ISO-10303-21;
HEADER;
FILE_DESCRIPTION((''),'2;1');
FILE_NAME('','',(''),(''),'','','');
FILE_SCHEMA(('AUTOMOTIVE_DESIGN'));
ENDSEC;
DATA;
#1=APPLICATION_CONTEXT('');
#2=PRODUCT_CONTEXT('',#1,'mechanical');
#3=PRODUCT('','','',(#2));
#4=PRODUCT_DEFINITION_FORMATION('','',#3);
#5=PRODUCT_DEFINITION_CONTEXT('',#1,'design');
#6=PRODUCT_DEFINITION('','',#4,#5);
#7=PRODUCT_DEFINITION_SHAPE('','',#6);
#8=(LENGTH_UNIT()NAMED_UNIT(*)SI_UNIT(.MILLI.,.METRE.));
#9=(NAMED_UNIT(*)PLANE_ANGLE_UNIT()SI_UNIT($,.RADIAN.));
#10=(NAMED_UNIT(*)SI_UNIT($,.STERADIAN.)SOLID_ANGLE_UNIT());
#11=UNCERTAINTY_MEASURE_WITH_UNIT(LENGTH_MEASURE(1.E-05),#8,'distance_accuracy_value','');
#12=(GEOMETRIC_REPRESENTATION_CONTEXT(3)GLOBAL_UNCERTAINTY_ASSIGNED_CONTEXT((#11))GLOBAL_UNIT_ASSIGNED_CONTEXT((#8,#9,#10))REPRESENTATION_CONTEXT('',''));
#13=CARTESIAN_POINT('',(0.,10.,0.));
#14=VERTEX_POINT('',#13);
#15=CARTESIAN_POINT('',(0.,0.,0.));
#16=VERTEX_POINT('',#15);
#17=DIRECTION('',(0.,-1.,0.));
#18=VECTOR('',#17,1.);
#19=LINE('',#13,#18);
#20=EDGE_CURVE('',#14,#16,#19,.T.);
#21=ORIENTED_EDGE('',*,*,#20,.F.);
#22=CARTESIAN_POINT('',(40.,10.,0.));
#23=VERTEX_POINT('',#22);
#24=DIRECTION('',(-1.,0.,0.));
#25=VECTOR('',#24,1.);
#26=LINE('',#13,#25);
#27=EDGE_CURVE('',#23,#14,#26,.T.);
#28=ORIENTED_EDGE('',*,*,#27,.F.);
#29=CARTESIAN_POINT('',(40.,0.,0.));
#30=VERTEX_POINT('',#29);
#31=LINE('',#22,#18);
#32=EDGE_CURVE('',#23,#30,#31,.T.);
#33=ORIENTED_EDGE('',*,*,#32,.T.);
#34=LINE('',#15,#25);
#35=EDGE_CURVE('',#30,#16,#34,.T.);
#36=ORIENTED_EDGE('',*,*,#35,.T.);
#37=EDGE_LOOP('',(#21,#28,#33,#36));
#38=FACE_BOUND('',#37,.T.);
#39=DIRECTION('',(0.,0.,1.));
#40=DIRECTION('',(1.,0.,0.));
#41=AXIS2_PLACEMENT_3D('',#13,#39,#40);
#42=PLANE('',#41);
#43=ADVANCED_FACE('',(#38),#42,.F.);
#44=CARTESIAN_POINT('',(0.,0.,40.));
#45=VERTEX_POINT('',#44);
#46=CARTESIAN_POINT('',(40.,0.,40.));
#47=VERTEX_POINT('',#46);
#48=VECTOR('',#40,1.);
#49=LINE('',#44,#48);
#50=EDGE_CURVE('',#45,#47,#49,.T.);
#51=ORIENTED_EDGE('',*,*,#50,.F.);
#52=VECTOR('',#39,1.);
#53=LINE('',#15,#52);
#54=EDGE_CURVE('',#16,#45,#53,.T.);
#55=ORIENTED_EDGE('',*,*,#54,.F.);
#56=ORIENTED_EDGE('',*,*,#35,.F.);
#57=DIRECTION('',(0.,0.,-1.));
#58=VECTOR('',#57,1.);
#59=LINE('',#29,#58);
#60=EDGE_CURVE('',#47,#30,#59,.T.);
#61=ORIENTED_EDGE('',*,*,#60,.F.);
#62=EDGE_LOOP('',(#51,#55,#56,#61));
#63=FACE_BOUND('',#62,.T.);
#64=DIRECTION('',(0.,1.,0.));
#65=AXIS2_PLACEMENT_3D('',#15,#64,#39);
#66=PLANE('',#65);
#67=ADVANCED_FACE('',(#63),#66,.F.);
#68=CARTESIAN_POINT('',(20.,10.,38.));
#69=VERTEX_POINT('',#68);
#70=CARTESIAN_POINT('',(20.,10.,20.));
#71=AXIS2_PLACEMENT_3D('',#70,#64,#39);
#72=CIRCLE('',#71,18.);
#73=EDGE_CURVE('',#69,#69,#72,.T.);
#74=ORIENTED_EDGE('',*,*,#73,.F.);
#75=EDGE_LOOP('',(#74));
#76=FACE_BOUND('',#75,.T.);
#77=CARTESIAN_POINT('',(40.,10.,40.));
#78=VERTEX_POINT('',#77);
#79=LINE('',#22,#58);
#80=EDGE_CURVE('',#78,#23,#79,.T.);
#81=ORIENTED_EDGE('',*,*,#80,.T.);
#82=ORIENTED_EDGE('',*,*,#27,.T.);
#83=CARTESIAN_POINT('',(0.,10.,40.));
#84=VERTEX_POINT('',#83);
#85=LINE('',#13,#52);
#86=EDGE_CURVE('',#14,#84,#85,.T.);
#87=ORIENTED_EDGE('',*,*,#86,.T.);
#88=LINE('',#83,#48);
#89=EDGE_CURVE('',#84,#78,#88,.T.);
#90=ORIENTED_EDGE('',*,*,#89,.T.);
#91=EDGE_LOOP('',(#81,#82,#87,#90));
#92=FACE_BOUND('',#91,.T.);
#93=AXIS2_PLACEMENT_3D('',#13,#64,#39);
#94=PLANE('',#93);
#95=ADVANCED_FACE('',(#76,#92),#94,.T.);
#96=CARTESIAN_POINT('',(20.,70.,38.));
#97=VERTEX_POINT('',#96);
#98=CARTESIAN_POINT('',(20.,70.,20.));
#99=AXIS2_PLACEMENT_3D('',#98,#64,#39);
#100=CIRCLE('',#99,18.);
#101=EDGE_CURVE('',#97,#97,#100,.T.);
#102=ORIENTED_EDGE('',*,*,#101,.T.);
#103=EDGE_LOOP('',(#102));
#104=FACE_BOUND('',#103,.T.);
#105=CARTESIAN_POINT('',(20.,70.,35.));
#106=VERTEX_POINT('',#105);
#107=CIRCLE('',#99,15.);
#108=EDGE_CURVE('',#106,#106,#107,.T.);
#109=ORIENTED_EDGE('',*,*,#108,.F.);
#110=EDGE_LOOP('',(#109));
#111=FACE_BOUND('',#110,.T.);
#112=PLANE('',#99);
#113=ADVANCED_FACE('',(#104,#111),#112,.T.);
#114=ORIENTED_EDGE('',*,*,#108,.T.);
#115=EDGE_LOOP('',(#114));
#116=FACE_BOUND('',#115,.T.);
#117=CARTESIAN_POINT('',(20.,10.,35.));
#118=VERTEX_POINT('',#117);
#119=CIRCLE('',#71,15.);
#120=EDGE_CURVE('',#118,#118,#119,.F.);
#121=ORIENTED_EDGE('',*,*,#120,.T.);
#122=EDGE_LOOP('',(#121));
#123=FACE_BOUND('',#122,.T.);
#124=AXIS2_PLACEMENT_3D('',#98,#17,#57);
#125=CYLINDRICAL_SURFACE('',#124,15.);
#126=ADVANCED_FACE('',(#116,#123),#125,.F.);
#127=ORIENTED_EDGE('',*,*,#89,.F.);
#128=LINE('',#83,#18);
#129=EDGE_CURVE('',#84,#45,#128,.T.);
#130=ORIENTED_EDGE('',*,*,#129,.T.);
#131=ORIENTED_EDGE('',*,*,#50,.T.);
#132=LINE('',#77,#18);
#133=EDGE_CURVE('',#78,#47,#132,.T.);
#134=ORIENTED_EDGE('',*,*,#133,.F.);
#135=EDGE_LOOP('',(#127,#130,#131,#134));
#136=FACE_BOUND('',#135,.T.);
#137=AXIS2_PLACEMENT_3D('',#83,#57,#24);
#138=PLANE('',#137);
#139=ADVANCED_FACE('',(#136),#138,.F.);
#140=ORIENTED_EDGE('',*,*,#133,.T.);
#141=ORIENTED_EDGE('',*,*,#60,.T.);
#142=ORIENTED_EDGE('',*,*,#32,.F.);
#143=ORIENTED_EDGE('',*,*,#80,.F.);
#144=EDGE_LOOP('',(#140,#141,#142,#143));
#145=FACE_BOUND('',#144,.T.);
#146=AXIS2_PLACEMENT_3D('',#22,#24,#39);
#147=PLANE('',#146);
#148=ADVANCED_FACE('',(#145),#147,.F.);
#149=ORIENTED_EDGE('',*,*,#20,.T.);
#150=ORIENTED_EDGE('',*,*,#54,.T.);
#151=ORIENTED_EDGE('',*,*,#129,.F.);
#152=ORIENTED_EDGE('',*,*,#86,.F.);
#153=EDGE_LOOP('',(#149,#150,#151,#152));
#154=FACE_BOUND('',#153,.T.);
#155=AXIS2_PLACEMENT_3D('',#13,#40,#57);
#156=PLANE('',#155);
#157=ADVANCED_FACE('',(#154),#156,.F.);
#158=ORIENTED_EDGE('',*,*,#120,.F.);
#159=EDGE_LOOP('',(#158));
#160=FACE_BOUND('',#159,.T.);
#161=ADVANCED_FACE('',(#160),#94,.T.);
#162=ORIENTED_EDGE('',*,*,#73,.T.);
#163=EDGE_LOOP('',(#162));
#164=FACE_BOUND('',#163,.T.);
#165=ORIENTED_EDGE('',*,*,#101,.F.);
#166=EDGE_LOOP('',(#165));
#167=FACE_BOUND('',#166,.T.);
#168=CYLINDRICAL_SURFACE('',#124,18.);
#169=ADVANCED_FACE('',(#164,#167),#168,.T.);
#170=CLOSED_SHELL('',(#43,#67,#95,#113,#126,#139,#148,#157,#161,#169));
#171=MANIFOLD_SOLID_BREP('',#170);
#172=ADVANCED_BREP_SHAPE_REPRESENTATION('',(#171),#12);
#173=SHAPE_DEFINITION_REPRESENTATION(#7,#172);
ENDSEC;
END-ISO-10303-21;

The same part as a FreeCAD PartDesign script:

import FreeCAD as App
import Part
import Sketcher

V = App.Vector
Q = App.Units.Quantity


def add_polygon(sketch, points):
    """Adds a closed chain of lines whose ends are joined by coincident constraints."""
    first, n = sketch.GeometryCount, len(points)
    for a, b in zip(points, points[1:] + points[:1]):
        sketch.addGeometry(Part.LineSegment(App.Vector(*a, 0), App.Vector(*b, 0)), False)
    for i in range(n):
        sketch.addConstraint(Sketcher.Constraint("Coincident", first + i, 2, first + (i + 1) % n, 1))

doc = App.newDocument("Part")
body = doc.addObject("PartDesign::Body", "Body")

sketch1 = doc.addObject("Sketcher::SketchObject", "Sketch")
body.addObject(sketch1)
sketch1.AttachmentSupport = (doc.XZ_Plane, [""])
sketch1.MapMode = "FlatFace"
add_polygon(sketch1, [(0, 0), (0, 40), (40, 40), (40, 0)])
sketch1.addConstraint([
    Sketcher.Constraint("Vertical", 0),
    Sketcher.Constraint("Horizontal", 1),
    Sketcher.Constraint("Vertical", 2),
    Sketcher.Constraint("Horizontal", 3),
    Sketcher.Constraint("Coincident", 3, 2, -1, 1),
    Sketcher.Constraint("Equal", 3, 0),
    Sketcher.Constraint("DistanceX", 1, 1, 1, 2, Q("40 mm")),
])
pad1 = doc.addObject("PartDesign::Pad", "Pad")
body.addObject(pad1)
pad1.Profile = sketch1
pad1.Length = 10
pad1.Reversed = True

sketch2 = doc.addObject("Sketcher::SketchObject", "Sketch001")
body.addObject(sketch2)
sketch2.AttachmentSupport = (doc.XZ_Plane, [""])
sketch2.MapMode = "FlatFace"
sketch2.AttachmentOffset = App.Placement(V(0, 0, -10), App.Rotation())
sketch2.addGeometry([
    Part.Circle(V(20, 20, 0), V(0, 0, 1), 18),
    Part.Circle(V(20, 20, 0), V(0, 0, 1), 15),
], False)
sketch2.addConstraint([
    Sketcher.Constraint("Coincident", 1, 3, 0, 3),
    Sketcher.Constraint("Diameter", 0, Q("36 mm")),
    Sketcher.Constraint("Diameter", 1, Q("30 mm")),
    Sketcher.Constraint("DistanceX", -1, 1, 0, 3, Q("20 mm")),
    Sketcher.Constraint("DistanceY", -1, 1, 0, 3, Q("20 mm")),
])
pad2 = doc.addObject("PartDesign::Pad", "Pad001")
body.addObject(pad2)
pad2.Profile = sketch2
pad2.Length = 60
pad2.Reversed = True

doc.recompute()
